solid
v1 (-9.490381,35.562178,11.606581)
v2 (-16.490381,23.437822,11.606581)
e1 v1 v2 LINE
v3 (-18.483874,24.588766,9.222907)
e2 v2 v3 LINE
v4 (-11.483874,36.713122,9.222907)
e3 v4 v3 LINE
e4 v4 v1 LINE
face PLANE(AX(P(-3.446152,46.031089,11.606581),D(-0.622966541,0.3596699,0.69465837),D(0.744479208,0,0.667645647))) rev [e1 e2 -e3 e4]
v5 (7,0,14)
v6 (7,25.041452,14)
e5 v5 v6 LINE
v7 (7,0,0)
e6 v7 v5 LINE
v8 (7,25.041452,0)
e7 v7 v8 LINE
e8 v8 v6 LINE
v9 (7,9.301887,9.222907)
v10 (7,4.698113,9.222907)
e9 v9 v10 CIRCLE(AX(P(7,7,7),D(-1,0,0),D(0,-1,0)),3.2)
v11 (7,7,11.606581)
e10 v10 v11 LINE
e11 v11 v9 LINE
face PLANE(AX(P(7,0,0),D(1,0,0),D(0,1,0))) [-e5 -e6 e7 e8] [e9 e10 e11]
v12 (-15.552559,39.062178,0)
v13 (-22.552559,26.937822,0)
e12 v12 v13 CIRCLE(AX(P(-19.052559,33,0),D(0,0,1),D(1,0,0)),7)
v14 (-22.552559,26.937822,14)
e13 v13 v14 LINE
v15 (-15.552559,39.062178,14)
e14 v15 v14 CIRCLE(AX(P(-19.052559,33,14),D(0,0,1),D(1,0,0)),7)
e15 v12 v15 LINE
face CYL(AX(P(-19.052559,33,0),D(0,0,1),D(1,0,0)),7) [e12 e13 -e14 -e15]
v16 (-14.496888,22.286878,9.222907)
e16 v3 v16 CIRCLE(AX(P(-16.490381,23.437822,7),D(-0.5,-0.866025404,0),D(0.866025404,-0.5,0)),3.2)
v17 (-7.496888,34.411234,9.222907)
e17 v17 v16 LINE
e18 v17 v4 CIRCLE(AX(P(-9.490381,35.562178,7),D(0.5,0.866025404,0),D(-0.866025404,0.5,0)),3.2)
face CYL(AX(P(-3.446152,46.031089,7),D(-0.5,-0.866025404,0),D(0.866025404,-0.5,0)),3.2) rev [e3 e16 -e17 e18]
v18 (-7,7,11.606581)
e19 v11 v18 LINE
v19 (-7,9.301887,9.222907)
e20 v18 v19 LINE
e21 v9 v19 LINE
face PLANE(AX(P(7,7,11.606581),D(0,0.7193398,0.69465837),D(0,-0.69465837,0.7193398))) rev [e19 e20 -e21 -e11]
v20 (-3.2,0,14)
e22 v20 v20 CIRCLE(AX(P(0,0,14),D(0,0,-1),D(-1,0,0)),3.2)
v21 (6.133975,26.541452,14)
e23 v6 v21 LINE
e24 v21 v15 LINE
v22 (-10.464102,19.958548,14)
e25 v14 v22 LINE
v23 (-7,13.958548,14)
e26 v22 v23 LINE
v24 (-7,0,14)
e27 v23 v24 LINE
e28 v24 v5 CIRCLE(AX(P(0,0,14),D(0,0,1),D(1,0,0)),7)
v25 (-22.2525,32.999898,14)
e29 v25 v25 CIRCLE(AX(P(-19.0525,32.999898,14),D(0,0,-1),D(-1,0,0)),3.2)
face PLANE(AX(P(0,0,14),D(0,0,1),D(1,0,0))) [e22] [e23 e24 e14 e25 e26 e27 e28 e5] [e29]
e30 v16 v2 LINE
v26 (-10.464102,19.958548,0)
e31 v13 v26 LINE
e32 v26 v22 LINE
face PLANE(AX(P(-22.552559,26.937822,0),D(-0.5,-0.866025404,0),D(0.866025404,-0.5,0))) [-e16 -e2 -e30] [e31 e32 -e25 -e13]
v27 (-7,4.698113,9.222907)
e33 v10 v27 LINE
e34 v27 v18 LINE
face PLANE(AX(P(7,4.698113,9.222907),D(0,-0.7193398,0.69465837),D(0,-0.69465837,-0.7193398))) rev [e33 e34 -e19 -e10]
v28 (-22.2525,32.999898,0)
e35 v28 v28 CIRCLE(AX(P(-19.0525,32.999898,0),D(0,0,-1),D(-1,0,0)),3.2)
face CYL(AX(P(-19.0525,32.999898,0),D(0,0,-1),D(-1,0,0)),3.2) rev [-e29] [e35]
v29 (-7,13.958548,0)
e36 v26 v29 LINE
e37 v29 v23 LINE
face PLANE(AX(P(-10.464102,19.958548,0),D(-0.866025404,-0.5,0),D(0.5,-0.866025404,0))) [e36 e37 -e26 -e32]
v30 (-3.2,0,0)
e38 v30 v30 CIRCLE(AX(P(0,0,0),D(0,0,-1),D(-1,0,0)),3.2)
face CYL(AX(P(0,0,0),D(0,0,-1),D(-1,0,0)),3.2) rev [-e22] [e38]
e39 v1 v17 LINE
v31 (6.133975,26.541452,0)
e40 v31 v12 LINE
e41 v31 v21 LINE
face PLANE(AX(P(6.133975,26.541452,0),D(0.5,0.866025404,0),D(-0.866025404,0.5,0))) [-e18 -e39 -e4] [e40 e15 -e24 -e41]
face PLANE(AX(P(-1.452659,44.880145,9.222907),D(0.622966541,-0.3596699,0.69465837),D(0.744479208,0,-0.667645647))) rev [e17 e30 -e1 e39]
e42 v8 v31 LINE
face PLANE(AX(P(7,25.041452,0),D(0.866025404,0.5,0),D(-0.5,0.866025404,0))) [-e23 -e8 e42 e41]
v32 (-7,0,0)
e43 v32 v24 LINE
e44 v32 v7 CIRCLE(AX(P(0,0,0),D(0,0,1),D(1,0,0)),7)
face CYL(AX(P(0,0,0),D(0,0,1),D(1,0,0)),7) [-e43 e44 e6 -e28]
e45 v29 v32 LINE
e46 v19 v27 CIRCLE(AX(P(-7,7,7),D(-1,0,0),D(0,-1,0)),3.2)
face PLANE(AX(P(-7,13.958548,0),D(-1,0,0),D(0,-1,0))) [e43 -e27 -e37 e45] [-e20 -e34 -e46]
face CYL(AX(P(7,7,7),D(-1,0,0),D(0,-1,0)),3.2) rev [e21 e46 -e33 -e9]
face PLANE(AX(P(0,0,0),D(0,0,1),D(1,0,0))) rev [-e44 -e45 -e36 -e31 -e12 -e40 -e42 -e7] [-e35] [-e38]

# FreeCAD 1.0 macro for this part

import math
import FreeCAD as App
import Part
import Sketcher
Q = App.Units.Quantity

doc = App.newDocument("Part")
body = doc.addObject("PartDesign::Body", "Body")

sketch1 = doc.addObject("Sketcher::SketchObject", "Sketch")
body.addObject(sketch1)
sketch1.AttachmentSupport = (doc.XY_Plane, [""])
sketch1.MapMode = "FlatFace"
sketch1.AttachmentOffset = App.Placement(App.Vector(0, 0, 14), App.Rotation())
sketch1.addGeometry(Part.LineSegment(App.Vector(7, 0, 0), App.Vector(7, 25, 0)), False)
sketch1.addGeometry(Part.LineSegment(App.Vector(7, 25, 0), App.Vector(6.1, 26.5, 0)), False)
sketch1.addGeometry(Part.LineSegment(App.Vector(6.1, 26.5, 0), App.Vector(-15.6, 39.1, 0)), False)
sketch1.addGeometry(Part.ArcOfCircle(Part.Circle(App.Vector(-19.1, 33, 0), App.Vector(0, 0, 1), 7), math.radians(60), math.radians(240)), False)
sketch1.addGeometry(Part.LineSegment(App.Vector(-22.6, 26.9, 0), App.Vector(-10.5, 20, 0)), False)
sketch1.addGeometry(Part.LineSegment(App.Vector(-10.5, 20, 0), App.Vector(-7, 14, 0)), False)
sketch1.addGeometry(Part.LineSegment(App.Vector(-7, 14, 0), App.Vector(-7, 0, 0)), False)
sketch1.addGeometry(Part.ArcOfCircle(Part.Circle(App.Vector(0, 0, 0), App.Vector(0, 0, 1), 7), math.radians(180), math.radians(360)), False)
sketch1.addConstraint(Sketcher.Constraint("Coincident", 0, 2, 1, 1))
sketch1.addConstraint(Sketcher.Constraint("Coincident", 1, 2, 2, 1))
sketch1.addConstraint(Sketcher.Constraint("Tangent", 2, 2, 3, 1))
sketch1.addConstraint(Sketcher.Constraint("Tangent", 3, 2, 4, 1))
sketch1.addConstraint(Sketcher.Constraint("Coincident", 4, 2, 5, 1))
sketch1.addConstraint(Sketcher.Constraint("Coincident", 5, 2, 6, 1))
sketch1.addConstraint(Sketcher.Constraint("Tangent", 6, 2, 7, 1))
sketch1.addConstraint(Sketcher.Constraint("Tangent", 7, 2, 0, 1))
sketch1.addConstraint(Sketcher.Constraint("Vertical", 0))
sketch1.addConstraint(Sketcher.Constraint("Vertical", 6))
sketch1.addConstraint(Sketcher.Constraint("Coincident", 7, 3, -1, 1))
sketch1.addConstraint(Sketcher.Constraint("Equal", 3, 7))
sketch1.addConstraint(Sketcher.Constraint("Parallel", 2, 4))
sketch1.addConstraint(Sketcher.Constraint("Parallel", 1, 5))
sketch1.addConstraint(Sketcher.Constraint("Radius", 3, 7.0))
sketch1.addConstraint(Sketcher.Constraint("Angle", 1, Q("120 deg")))
sketch1.addConstraint(Sketcher.Constraint("Angle", 2, Q("150 deg")))
sketch1.addConstraint(Sketcher.Constraint("DistanceY", -1, 1, 3, 3, 33.0))
sketch1.addConstraint(Sketcher.Constraint("DistanceY", 5, 2, 4, 2, 6.0))
sketch1.addConstraint(Sketcher.Constraint("DistanceY", 0, 2, 1, 2, 1.5))
sketch1.addConstraint(Sketcher.Constraint("DistanceY", 0, 1, 0, 2, 25.041452))
pad1 = doc.addObject("PartDesign::Pad", "Pad")
body.addObject(pad1)
pad1.Profile = sketch1
pad1.Length = 14
pad1.Reversed = True

sketch2 = doc.addObject("Sketcher::SketchObject", "Sketch001")
body.addObject(sketch2)
sketch2.Placement = App.Placement(App.Vector(6.026279, 10.437822, 0), App.Rotation(App.Vector(0.866025404, -0.5, 0), App.Vector(0, 0, 1), App.Vector(-0.5, -0.866025404, 0), "ZXY"))
sketch2.addGeometry(Part.LineSegment(App.Vector(-26, 11.6, 0), App.Vector(-28.3, 9.2, 0)), False)
sketch2.addGeometry(Part.ArcOfCircle(Part.Circle(App.Vector(-26, 7, 0), App.Vector(0, 0, 1), 3.2), math.radians(136), math.radians(404)), False)
sketch2.addGeometry(Part.LineSegment(App.Vector(-23.7, 9.2, 0), App.Vector(-26, 11.6, 0)), False)
sketch2.addConstraint(Sketcher.Constraint("Tangent", 0, 2, 1, 1))
sketch2.addConstraint(Sketcher.Constraint("Tangent", 1, 2, 2, 1))
sketch2.addConstraint(Sketcher.Constraint("Coincident", 2, 2, 0, 1))
sketch2.addConstraint(Sketcher.Constraint("Horizontal", 0, 2, 1, 2))
sketch2.addConstraint(Sketcher.Constraint("Radius", 1, 3.2))
sketch2.addConstraint(Sketcher.Constraint("Angle", 0, Q("-134 deg")))
sketch2.addConstraint(Sketcher.Constraint("DistanceX", 1, 3, -1, 1, 26.0))
sketch2.addConstraint(Sketcher.Constraint("DistanceY", -1, 1, 1, 3, 7.0))
pocket1 = doc.addObject("PartDesign::Pocket", "Pocket")
body.addObject(pocket1)
pocket1.Profile = sketch2
pocket1.Type = "ThroughAll"

sketch3 = doc.addObject("Sketcher::SketchObject", "Sketch002")
body.addObject(sketch3)
sketch3.AttachmentSupport = (doc.YZ_Plane, [""])
sketch3.MapMode = "FlatFace"
sketch3.AttachmentOffset = App.Placement(App.Vector(0, 0, -7), App.Rotation())
sketch3.addGeometry(Part.LineSegment(App.Vector(4.7, 9.2, 0), App.Vector(7, 11.6, 0)), False)
sketch3.addGeometry(Part.LineSegment(App.Vector(7, 11.6, 0), App.Vector(9.3, 9.2, 0)), False)
sketch3.addGeometry(Part.ArcOfCircle(Part.Circle(App.Vector(7, 7, 0), App.Vector(0, 0, 1), 3.2), math.radians(136), math.radians(404)), False)
sketch3.addConstraint(Sketcher.Constraint("Coincident", 0, 2, 1, 1))
sketch3.addConstraint(Sketcher.Constraint("Tangent", 1, 2, 2, 2))
sketch3.addConstraint(Sketcher.Constraint("Tangent", 2, 1, 0, 1))
sketch3.addConstraint(Sketcher.Constraint("Horizontal", 1, 2, 2, 1))
sketch3.addConstraint(Sketcher.Constraint("Radius", 2, 3.2))
sketch3.addConstraint(Sketcher.Constraint("Angle", 0, Q("46 deg")))
sketch3.addConstraint(Sketcher.Constraint("DistanceX", -1, 1, 2, 3, 7.0))
sketch3.addConstraint(Sketcher.Constraint("DistanceY", -1, 1, 2, 3, 7.0))
pocket2 = doc.addObject("PartDesign::Pocket", "Pocket001")
body.addObject(pocket2)
pocket2.Profile = sketch3
pocket2.Type = "ThroughAll"
pocket2.Reversed = True

sketch4 = doc.addObject("Sketcher::SketchObject", "Sketch003")
body.addObject(sketch4)
sketch4.AttachmentSupport = (doc.XY_Plane, [""])
sketch4.MapMode = "FlatFace"
sketch4.addGeometry(Part.Circle(App.Vector(0, 0, 0), App.Vector(0, 0, 1), 3.2), False)
sketch4.addConstraint(Sketcher.Constraint("Coincident", 0, 3, -1, 1))
sketch4.addConstraint(Sketcher.Constraint("Diameter", 0, 6.4))
doc.recompute()
hole = doc.addObject("PartDesign::Hole", "Hole")
body.addObject(hole)
hole.Profile = sketch4
hole.ThreadType = "None"
hole.Diameter = 6.4
hole.DepthType = "ThroughAll"
hole.Reversed = True

sketch5 = doc.addObject("Sketcher::SketchObject", "Sketch004")
body.addObject(sketch5)
sketch5.AttachmentSupport = (doc.XY_Plane, [""])
sketch5.MapMode = "FlatFace"
sketch5.addGeometry(Part.Circle(App.Vector(-19.1, 33, 0), App.Vector(0, 0, 1), 3.2), False)
sketch5.addConstraint(Sketcher.Constraint("Diameter", 0, 6.4))
sketch5.addConstraint(Sketcher.Constraint("DistanceX", 0, 3, -1, 1, 19.0525))
sketch5.addConstraint(Sketcher.Constraint("DistanceY", -1, 1, 0, 3, 32.999898))
doc.recompute()
hole2 = doc.addObject("PartDesign::Hole", "Hole001")
body.addObject(hole2)
hole2.Profile = sketch5
hole2.ThreadType = "None"
hole2.Diameter = 6.4
hole2.DepthType = "ThroughAll"
hole2.Reversed = True

doc.recompute()
